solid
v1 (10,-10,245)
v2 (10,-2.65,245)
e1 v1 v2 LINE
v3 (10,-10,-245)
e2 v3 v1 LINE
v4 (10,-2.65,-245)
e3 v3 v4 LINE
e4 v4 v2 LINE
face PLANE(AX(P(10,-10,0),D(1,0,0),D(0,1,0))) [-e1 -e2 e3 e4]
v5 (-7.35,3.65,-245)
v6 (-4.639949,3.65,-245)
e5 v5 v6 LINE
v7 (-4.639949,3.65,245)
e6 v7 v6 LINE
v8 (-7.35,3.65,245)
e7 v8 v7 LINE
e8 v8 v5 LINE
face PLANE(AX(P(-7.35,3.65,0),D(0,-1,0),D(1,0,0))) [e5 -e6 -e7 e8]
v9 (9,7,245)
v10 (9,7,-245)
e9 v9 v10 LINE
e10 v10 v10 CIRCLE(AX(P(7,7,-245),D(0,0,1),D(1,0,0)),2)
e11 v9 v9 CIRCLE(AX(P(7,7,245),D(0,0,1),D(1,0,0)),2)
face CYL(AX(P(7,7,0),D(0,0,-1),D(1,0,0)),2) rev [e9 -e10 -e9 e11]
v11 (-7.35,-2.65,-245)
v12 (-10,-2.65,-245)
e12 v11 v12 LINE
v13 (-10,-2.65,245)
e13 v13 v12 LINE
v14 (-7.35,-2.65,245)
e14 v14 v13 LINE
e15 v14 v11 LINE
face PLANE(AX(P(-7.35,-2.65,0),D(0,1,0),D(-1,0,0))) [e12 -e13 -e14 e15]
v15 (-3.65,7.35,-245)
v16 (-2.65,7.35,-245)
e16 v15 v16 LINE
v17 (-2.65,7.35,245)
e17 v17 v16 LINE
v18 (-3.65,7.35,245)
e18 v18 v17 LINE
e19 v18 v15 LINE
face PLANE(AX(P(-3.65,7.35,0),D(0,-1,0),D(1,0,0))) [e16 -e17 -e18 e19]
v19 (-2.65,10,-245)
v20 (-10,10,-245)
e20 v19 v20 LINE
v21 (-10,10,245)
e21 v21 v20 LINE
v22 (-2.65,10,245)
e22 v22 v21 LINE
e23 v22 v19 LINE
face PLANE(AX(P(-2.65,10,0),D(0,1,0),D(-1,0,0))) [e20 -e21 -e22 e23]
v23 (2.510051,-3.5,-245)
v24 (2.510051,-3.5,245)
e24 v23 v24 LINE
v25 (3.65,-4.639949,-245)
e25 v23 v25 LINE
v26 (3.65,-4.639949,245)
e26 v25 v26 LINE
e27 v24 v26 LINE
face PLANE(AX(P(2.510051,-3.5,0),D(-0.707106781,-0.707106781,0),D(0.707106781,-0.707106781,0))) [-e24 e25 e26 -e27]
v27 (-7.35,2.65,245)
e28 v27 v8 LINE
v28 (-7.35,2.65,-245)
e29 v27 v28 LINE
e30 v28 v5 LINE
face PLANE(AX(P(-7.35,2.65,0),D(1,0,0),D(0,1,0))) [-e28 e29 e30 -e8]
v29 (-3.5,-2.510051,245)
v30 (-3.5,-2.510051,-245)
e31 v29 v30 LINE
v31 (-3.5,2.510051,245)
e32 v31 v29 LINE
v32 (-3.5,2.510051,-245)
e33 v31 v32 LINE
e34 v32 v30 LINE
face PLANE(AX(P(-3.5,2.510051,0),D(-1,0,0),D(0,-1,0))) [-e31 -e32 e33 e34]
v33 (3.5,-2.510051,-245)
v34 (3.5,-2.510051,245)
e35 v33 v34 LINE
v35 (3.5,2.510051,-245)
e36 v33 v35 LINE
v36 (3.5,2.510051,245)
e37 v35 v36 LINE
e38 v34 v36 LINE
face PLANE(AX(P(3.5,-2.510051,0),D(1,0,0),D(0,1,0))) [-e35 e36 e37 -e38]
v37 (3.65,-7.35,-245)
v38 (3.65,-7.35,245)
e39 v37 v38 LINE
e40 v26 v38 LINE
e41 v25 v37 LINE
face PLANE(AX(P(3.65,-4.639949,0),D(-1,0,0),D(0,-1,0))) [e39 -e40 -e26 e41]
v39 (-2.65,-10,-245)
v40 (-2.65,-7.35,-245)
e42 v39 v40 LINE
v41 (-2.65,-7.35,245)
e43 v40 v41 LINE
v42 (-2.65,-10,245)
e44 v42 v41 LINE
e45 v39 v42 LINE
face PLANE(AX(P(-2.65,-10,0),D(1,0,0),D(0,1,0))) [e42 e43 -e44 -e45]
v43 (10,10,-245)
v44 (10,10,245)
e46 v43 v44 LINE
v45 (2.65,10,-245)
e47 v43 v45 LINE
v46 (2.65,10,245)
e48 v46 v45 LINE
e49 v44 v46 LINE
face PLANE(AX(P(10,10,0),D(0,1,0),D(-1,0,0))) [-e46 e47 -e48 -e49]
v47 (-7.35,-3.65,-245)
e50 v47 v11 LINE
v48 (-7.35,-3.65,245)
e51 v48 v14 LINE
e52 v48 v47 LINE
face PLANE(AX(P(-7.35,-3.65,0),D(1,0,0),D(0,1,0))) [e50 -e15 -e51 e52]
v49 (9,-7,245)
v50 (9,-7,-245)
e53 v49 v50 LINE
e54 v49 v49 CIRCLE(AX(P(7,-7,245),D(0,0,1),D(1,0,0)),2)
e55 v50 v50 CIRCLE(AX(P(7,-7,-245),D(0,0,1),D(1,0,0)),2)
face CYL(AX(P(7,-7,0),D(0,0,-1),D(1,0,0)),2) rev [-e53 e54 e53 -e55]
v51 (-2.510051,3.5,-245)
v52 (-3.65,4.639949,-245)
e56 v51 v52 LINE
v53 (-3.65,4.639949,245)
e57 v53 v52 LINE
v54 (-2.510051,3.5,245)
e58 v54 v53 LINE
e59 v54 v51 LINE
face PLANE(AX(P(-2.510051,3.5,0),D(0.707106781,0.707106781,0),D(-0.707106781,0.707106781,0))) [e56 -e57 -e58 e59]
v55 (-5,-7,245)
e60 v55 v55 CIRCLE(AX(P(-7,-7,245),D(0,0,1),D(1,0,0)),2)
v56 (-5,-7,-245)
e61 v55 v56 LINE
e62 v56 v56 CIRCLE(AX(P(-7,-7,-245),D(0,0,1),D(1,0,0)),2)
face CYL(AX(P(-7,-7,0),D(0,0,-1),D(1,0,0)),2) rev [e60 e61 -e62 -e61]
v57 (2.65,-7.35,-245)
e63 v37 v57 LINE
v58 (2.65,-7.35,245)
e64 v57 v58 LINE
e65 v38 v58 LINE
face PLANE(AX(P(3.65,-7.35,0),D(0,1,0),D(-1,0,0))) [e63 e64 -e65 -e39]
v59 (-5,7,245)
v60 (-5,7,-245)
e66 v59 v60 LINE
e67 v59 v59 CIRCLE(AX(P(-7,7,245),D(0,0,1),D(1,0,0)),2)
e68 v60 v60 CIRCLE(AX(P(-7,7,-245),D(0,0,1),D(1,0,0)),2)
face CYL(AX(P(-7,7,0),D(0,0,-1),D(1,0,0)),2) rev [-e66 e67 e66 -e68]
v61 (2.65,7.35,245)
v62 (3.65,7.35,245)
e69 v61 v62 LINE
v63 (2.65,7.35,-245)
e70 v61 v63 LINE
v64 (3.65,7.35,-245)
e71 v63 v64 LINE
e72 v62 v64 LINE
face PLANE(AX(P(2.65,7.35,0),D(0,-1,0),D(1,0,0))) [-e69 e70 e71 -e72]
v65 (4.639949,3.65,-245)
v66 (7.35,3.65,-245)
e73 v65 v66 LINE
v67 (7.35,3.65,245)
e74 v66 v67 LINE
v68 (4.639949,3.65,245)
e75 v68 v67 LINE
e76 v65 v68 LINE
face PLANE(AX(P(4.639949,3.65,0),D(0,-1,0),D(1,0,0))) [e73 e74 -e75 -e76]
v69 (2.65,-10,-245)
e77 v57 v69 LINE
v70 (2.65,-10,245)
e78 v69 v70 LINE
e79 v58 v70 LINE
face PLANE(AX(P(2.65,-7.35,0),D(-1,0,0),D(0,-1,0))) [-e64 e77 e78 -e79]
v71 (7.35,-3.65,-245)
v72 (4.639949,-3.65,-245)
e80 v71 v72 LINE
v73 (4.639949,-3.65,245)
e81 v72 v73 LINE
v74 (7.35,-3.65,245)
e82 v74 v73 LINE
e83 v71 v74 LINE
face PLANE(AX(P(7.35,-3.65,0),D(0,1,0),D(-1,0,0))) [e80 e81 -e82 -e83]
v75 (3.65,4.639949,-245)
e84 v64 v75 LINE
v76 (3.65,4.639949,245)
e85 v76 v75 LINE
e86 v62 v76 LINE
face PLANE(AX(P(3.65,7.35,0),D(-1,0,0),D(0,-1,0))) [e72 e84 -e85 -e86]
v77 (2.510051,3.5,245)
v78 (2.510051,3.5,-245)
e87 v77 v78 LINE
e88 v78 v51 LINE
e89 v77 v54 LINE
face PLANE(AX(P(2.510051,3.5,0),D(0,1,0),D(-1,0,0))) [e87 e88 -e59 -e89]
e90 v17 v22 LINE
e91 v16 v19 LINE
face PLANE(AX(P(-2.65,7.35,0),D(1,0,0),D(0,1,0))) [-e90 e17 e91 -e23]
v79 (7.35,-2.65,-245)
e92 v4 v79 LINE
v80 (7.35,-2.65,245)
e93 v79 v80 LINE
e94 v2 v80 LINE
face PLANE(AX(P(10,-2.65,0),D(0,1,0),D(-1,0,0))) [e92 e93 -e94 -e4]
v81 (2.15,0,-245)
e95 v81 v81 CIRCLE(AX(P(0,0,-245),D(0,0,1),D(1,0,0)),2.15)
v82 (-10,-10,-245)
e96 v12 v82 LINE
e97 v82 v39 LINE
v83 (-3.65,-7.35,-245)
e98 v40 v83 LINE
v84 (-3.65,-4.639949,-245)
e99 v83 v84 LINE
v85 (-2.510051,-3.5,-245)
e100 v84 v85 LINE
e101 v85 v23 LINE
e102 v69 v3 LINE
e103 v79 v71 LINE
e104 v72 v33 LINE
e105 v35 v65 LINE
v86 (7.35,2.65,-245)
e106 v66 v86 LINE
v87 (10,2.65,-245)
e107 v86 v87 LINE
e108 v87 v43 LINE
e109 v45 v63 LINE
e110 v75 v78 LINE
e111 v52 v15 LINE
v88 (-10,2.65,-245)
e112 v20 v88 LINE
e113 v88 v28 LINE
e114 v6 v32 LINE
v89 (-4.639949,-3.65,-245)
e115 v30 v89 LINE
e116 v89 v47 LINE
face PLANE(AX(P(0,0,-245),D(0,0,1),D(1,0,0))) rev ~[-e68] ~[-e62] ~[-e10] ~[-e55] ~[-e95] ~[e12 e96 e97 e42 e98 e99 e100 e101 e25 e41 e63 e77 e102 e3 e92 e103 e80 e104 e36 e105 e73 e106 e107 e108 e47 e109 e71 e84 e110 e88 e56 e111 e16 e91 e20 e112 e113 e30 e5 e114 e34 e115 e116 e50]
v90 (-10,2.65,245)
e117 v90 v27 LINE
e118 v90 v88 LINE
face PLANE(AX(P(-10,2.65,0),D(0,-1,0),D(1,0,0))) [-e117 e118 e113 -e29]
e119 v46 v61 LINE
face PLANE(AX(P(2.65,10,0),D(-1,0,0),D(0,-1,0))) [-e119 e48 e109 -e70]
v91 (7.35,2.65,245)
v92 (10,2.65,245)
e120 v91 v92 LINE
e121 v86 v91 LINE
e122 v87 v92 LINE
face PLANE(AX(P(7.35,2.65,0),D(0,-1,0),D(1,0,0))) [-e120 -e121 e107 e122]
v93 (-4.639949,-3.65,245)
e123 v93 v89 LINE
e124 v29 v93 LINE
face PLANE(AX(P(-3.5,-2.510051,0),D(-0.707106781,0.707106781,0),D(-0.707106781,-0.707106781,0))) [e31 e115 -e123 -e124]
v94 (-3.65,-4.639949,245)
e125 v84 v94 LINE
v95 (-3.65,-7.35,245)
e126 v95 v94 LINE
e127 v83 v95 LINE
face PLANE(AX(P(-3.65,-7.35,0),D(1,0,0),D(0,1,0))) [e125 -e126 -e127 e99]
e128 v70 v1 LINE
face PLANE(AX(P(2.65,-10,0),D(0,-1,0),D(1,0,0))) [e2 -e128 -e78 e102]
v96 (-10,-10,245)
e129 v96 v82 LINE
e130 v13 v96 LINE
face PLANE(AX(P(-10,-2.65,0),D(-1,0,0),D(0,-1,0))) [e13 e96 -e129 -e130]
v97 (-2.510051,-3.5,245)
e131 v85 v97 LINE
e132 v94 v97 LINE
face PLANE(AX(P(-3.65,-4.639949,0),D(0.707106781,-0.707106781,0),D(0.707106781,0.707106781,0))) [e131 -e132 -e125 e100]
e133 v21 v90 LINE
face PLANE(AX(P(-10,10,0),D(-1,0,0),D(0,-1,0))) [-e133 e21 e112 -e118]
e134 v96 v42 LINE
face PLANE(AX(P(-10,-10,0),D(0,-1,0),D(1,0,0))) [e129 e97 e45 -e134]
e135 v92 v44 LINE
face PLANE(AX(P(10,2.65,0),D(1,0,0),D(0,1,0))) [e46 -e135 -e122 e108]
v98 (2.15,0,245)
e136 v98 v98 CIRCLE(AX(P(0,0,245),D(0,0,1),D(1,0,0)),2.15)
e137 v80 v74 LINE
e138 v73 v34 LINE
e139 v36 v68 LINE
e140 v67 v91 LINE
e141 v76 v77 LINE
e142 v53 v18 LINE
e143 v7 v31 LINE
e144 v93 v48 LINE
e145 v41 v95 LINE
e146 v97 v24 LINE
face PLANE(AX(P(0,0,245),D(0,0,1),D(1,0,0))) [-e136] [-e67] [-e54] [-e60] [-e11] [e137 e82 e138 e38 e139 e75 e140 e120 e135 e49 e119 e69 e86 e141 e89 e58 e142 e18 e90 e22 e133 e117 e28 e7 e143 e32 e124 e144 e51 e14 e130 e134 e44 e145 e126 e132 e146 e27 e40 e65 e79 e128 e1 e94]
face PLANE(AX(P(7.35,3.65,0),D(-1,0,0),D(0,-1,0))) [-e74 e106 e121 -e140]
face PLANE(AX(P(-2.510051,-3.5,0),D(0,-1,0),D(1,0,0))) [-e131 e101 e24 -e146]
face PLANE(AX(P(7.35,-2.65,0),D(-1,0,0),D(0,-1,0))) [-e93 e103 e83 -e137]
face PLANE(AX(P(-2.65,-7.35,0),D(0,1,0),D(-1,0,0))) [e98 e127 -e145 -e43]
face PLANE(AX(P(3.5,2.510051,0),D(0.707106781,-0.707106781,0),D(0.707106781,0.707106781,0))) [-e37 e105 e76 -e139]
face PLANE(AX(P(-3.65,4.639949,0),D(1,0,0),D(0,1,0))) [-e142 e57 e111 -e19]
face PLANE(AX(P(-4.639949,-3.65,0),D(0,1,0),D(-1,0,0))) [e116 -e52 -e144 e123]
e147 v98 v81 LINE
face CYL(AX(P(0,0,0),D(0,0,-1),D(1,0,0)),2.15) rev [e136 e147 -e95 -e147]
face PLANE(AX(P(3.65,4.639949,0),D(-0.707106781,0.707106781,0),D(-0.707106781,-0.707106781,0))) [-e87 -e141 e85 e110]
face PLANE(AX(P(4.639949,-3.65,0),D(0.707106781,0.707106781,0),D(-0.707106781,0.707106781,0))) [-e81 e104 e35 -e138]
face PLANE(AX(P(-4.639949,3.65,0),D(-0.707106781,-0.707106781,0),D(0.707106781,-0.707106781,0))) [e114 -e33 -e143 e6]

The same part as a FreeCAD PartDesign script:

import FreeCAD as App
import Part
import Sketcher
Q = App.Units.Quantity


def add_polygon(sketch, points):
    """Adds a closed chain of lines whose ends are joined by coincident constraints."""
    first, n = sketch.GeometryCount, len(points)
    for a, b in zip(points, points[1:] + points[:1]):
        sketch.addGeometry(Part.LineSegment(App.Vector(*a, 0), App.Vector(*b, 0)), False)
    for i in range(n):
        sketch.addConstraint(Sketcher.Constraint("Coincident", first + i, 2, first + (i + 1) % n, 1))

doc = App.newDocument("Part")
body = doc.addObject("PartDesign::Body", "Body")

sketch1 = body.newObject("Sketcher::SketchObject", "Sketch")
sketch1.AttachmentSupport = (doc.getObject("XY_Plane"), [""])
sketch1.MapMode = "FlatFace"
add_polygon(sketch1, [(-10, -10), (-2.65, -10), (-2.65, -7.35), (-3.65, -7.35), (-3.65, -4.639949), (-2.510051, -3.5), (2.510051, -3.5), (3.65, -4.639949), (3.65, -7.35), (2.65, -7.35), (2.65, -10), (10, -10), (10, -2.65), (7.35, -2.65), (7.35, -3.65), (4.639949, -3.65), (3.5, -2.510051), (3.5, 2.510051), (4.639949, 3.65), (7.35, 3.65), (7.35, 2.65), (10, 2.65), (10, 10), (2.65, 10), (2.65, 7.35), (3.65, 7.35), (3.65, 4.639949), (2.510051, 3.5), (-2.510051, 3.5), (-3.65, 4.639949), (-3.65, 7.35), (-2.65, 7.35), (-2.65, 10), (-10, 10), (-10, 2.65), (-7.35, 2.65), (-7.35, 3.65), (-4.639949, 3.65), (-3.5, 2.510051), (-3.5, -2.510051), (-4.639949, -3.65), (-7.35, -3.65), (-7.35, -2.65), (-10, -2.65)])
sketch1.addGeometry(Part.Circle(App.Vector(-7, -7, 0), App.Vector(0, 0, 1), 2), False)
sketch1.addGeometry(Part.Circle(App.Vector(7, -7, 0), App.Vector(0, 0, 1), 2), False)
sketch1.addGeometry(Part.Circle(App.Vector(-7, 7, 0), App.Vector(0, 0, 1), 2), False)
sketch1.addGeometry(Part.Circle(App.Vector(0, 0, 0), App.Vector(0, 0, 1), 2.15), False)
sketch1.addGeometry(Part.Circle(App.Vector(7, 7, 0), App.Vector(0, 0, 1), 2), False)
sketch1.addConstraint([
    Sketcher.Constraint("Horizontal", 0),
    Sketcher.Constraint("Vertical", 1),
    Sketcher.Constraint("Horizontal", 2),
    Sketcher.Constraint("Vertical", 3),
    Sketcher.Constraint("Horizontal", 5),
    Sketcher.Constraint("Vertical", 7),
    Sketcher.Constraint("Horizontal", 8),
    Sketcher.Constraint("Vertical", 9),
    Sketcher.Constraint("Horizontal", 10),
    Sketcher.Constraint("Vertical", 11),
    Sketcher.Constraint("Horizontal", 12),
    Sketcher.Constraint("Vertical", 13),
    Sketcher.Constraint("Horizontal", 14),
    Sketcher.Constraint("Vertical", 16),
    Sketcher.Constraint("Horizontal", 18),
    Sketcher.Constraint("Vertical", 19),
    Sketcher.Constraint("Horizontal", 20),
    Sketcher.Constraint("Vertical", 21),
    Sketcher.Constraint("Horizontal", 22),
    Sketcher.Constraint("Vertical", 23),
    Sketcher.Constraint("Horizontal", 24),
    Sketcher.Constraint("Vertical", 25),
    Sketcher.Constraint("Horizontal", 27),
    Sketcher.Constraint("Vertical", 29),
    Sketcher.Constraint("Horizontal", 30),
    Sketcher.Constraint("Vertical", 31),
    Sketcher.Constraint("Horizontal", 32),
    Sketcher.Constraint("Vertical", 33),
    Sketcher.Constraint("Horizontal", 34),
    Sketcher.Constraint("Vertical", 35),
    Sketcher.Constraint("Horizontal", 36),
    Sketcher.Constraint("Vertical", 38),
    Sketcher.Constraint("Horizontal", 40),
    Sketcher.Constraint("Vertical", 41),
    Sketcher.Constraint("Horizontal", 42),
    Sketcher.Constraint("Vertical", 43),
    Sketcher.Constraint("Coincident", 47, 3, -1, 1),
    Sketcher.Constraint("Equal", 44, 45),
    Sketcher.Constraint("Equal", 45, 46),
    Sketcher.Constraint("Equal", 46, 48),
    Sketcher.Constraint("Symmetric", 45, 3, 46, 3, -1, 1),
    Sketcher.Constraint("Symmetric", 44, 3, 48, 3, -1, 1),
    Sketcher.Constraint("Symmetric", 0, 2, 22, 2, -1, 1),
    Sketcher.Constraint("Symmetric", 2, 2, 24, 2, -1, 1),
    Sketcher.Constraint("Symmetric", 4, 2, 26, 2, -1, 1),
    Sketcher.Constraint("Symmetric", 6, 2, 28, 2, -1, 1),
    Sketcher.Constraint("Symmetric", 8, 2, 30, 2, -1, 1),
    Sketcher.Constraint("Symmetric", 10, 2, 32, 2, -1, 1),
    Sketcher.Constraint("Symmetric", 12, 2, 34, 2, -1, 1),
    Sketcher.Constraint("Symmetric", 14, 2, 36, 2, -1, 1),
    Sketcher.Constraint("Symmetric", 15, 2, 37, 2, -1, 1),
    Sketcher.Constraint("Symmetric", 17, 2, 39, 2, -1, 1),
    Sketcher.Constraint("Symmetric", 19, 2, 41, 2, -1, 1),
    Sketcher.Constraint("Symmetric", 44, 3, 45, 3, -2),
    Sketcher.Constraint("Symmetric", 3, 2, 6, 2, -2),
    Sketcher.Constraint("Symmetric", 1, 2, 8, 2, -2),
    Sketcher.Constraint("Symmetric", 21, 2, 32, 2, -2),
    Sketcher.Constraint("Symmetric", 19, 2, 34, 2, -2),
    Sketcher.Constraint("Symmetric", 17, 2, 36, 2, -2),
    Sketcher.Constraint("Perpendicular", 4, 6),
    Sketcher.Constraint("Parallel", 6, 15),
    Sketcher.Constraint("Perpendicular", 15, 17),
    Sketcher.Constraint("Parallel", 17, 26),
    Sketcher.Constraint("Perpendicular", 26, 28),
    Sketcher.Constraint("Perpendicular", 37, 39),
    Sketcher.Constraint("Horizontal", 16, 2, 37, 2),
    Sketcher.Constraint("Vertical", 33, 2, 42, 2),
    Sketcher.Constraint("Equal", 42, 1),
    Sketcher.Constraint("Equal", 40, 3),
    Sketcher.Constraint("Equal", 32, 11),
    Sketcher.Constraint("Equal", 30, 13),
    Sketcher.Constraint("Equal", 27, 16),
    Sketcher.Constraint("Equal", 6, 15),
    Sketcher.Constraint("Diameter", 44, Q("4 mm")),
    Sketcher.Constraint("Diameter", 47, Q("4.3 mm")),
    Sketcher.Constraint("DistanceX", 2, 2, 2, 1, Q("1 mm")),
    Sketcher.Constraint("DistanceX", 44, 3, -1, 1, Q("7 mm")),
    Sketcher.Constraint("DistanceY", 44, 3, -1, 1, Q("7 mm")),
    Sketcher.Constraint("DistanceY", 0, 2, -1, 1, Q("10 mm")),
    Sketcher.Constraint("DistanceX", 0, 1, 0, 2, Q("7.35 mm")),
    Sketcher.Constraint("DistanceX", 12, 2, 12, 1, Q("2.65 mm")),
    Sketcher.Constraint("DistanceY", 4, 2, -1, 1, Q("3.5 mm")),
    Sketcher.Constraint("DistanceX", 5, 1, 5, 2, Q("5.020101 mm")),
])
pad1 = body.newObject("PartDesign::Pad", "Pad")
pad1.Profile = sketch1
pad1.Length = 490
pad1.Midplane = True

doc.recompute()
